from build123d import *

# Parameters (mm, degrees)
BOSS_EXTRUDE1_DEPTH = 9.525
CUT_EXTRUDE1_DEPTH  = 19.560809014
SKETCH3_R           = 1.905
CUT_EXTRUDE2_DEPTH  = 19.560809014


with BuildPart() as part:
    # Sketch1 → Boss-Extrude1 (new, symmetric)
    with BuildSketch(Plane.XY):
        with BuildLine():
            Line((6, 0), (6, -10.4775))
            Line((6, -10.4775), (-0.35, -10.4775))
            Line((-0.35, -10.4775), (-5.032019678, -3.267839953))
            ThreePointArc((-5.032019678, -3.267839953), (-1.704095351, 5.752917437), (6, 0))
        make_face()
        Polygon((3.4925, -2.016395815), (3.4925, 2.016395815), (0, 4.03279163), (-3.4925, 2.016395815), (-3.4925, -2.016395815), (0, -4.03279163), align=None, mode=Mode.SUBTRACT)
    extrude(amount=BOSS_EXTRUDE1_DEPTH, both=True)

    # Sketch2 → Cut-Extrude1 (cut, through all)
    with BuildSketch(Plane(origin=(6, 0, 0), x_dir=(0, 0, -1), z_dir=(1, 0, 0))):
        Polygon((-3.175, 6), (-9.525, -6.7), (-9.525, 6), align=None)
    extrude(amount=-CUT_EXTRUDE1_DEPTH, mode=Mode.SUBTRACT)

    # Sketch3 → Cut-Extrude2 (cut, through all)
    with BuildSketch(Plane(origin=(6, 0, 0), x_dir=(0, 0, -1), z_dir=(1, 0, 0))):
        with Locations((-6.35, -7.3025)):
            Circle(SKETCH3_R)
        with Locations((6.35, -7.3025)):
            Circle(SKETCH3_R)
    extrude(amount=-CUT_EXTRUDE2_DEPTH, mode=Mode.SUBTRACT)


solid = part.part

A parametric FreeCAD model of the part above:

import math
import FreeCAD as App
import Part
import Sketcher
from FreeCAD import Vector
Q = App.Units.Quantity


def add_polygon(sketch, points):
    """Adds a closed chain of lines whose ends are joined by coincident constraints."""
    first, n = sketch.GeometryCount, len(points)
    for a, b in zip(points, points[1:] + points[:1]):
        sketch.addGeometry(Part.LineSegment(App.Vector(*a, 0), App.Vector(*b, 0)), False)
    for i in range(n):
        sketch.addConstraint(Sketcher.Constraint("Coincident", first + i, 2, first + (i + 1) % n, 1))

doc = App.newDocument("Part")
body = doc.addObject("PartDesign::Body", "Body")

# Sketch on XY plane
sketch1 = doc.addObject("Sketcher::SketchObject", "Sketch")
body.addObject(sketch1)
sketch1.AttachmentSupport = (doc.XY_Plane, [""])
sketch1.MapMode = "FlatFace"
sketch1.addGeometry(Part.LineSegment(Vector(6, -10.5, 0), Vector(6, 0, 0)), False)  # 0
sketch1.addGeometry(Part.ArcOfCircle(Part.Circle(Vector(0, 0, 0), Vector(0, 0, 1), 6), math.radians(0), math.radians(213)), False)  # 1
sketch1.addGeometry(Part.LineSegment(Vector(-5, -3.3, 0), Vector(-0.3, -10.5, 0)), False)  # 2
sketch1.addGeometry(Part.LineSegment(Vector(-0.3, -10.5, 0), Vector(6, -10.5, 0)), False)  # 3
add_polygon(sketch1, [(3.5, -2), (0, -4), (-3.5, -2), (-3.5, 2), (0, 4), (3.5, 2)])  # lines 4-9
sketch1.addConstraint([
    Sketcher.Constraint("Tangent", 0, 2, 1, 1),
    Sketcher.Constraint("Tangent", 1, 2, 2, 1),
    Sketcher.Constraint("Coincident", 2, 2, 3, 1),
    Sketcher.Constraint("Coincident", 3, 2, 0, 1),
    Sketcher.Constraint("Vertical", 0),
    Sketcher.Constraint("Horizontal", 3),
    Sketcher.Constraint("Vertical", 6),
    Sketcher.Constraint("Vertical", 9),
    Sketcher.Constraint("Coincident", 1, 3, -1, 1),
    Sketcher.Constraint("Symmetric", 4, 2, 7, 2, -1, 1),
    Sketcher.Constraint("Symmetric", 5, 2, 8, 2, -1, 1),
    Sketcher.Constraint("PointOnObject", 4, 2, -2),
    Sketcher.Constraint("Parallel", 4, 7),
    Sketcher.Constraint("Horizontal", 6, 2, 8, 2),
    Sketcher.Constraint("Angle", 4, Q("-150 deg")),
    Sketcher.Constraint("DistanceX", 3, 1, 3, 2, Q("0.25 in")),
    Sketcher.Constraint("Radius", 1, 6.0),
    Sketcher.Constraint("DistanceY", 0, 1, 0, 2, Q("0.4125 in")),
    Sketcher.Constraint("DistanceX", 6, 2, 8, 2, Q("0.275 in")),
    Sketcher.Constraint("DistanceY", 6, 1, 6, 2, 4.032792),
])
pad1 = doc.addObject("PartDesign::Pad", "Pad")
body.addObject(pad1)
pad1.Profile = sketch1
pad1.Length = Q("0.75 in")
pad1.Midplane = True

# Sketch on YZ plane
sketch2 = doc.addObject("Sketcher::SketchObject", "Sketch001")
body.addObject(sketch2)
sketch2.AttachmentSupport = (doc.YZ_Plane, [""])
sketch2.MapMode = "FlatFace"
sketch2.AttachmentOffset = App.Placement(Vector(0, 0, 6), App.Rotation())
add_polygon(sketch2, [(-7, 10), (6, 3), (6, 10)])  # lines 0-2
sketch2.addConstraint([
    Sketcher.Constraint("Vertical", 1),
    Sketcher.Constraint("Horizontal", 2),
    Sketcher.Constraint("DistanceX", 2, 2, 2, 1, Q("0.5 in")),
    Sketcher.Constraint("DistanceY", 1, 1, 1, 2, Q("0.25 in")),
    Sketcher.Constraint("DistanceY", -1, 1, 0, 2, Q("0.125 in")),
    Sketcher.Constraint("DistanceX", -1, 1, 0, 2, 6.0),
])
pocket1 = doc.addObject("PartDesign::Pocket", "Pocket")
body.addObject(pocket1)
pocket1.Profile = sketch2
pocket1.Type = "ThroughAll"

# Sketch on YZ plane
sketch3 = doc.addObject("Sketcher::SketchObject", "Sketch002")
body.addObject(sketch3)
sketch3.AttachmentSupport = (doc.YZ_Plane, [""])
sketch3.MapMode = "FlatFace"
sketch3.AttachmentOffset = App.Placement(Vector(0, 0, 6), App.Rotation())
sketch3.addGeometry([
    Part.Circle(Vector(-7.3, 6.3, 0), Vector(0, 0, 1), 1.9),
    Part.Circle(Vector(-7.3, -6.3, 0), Vector(0, 0, 1), 1.9),
], False)
sketch3.addConstraint([
    Sketcher.Constraint("Equal", 0, 1),
    Sketcher.Constraint("Symmetric", 0, 3, 1, 3, -1),
    Sketcher.Constraint("Diameter", 0, Q("0.15 in")),
    Sketcher.Constraint("DistanceY", 1, 3, 0, 3, Q("0.5 in")),
    Sketcher.Constraint("DistanceX", 0, 3, -1, 1, Q("0.2875 in")),
])
pocket2 = doc.addObject("PartDesign::Pocket", "Pocket001")
body.addObject(pocket2)
pocket2.Profile = sketch3
pocket2.Type = "ThroughAll"

doc.recompute()
